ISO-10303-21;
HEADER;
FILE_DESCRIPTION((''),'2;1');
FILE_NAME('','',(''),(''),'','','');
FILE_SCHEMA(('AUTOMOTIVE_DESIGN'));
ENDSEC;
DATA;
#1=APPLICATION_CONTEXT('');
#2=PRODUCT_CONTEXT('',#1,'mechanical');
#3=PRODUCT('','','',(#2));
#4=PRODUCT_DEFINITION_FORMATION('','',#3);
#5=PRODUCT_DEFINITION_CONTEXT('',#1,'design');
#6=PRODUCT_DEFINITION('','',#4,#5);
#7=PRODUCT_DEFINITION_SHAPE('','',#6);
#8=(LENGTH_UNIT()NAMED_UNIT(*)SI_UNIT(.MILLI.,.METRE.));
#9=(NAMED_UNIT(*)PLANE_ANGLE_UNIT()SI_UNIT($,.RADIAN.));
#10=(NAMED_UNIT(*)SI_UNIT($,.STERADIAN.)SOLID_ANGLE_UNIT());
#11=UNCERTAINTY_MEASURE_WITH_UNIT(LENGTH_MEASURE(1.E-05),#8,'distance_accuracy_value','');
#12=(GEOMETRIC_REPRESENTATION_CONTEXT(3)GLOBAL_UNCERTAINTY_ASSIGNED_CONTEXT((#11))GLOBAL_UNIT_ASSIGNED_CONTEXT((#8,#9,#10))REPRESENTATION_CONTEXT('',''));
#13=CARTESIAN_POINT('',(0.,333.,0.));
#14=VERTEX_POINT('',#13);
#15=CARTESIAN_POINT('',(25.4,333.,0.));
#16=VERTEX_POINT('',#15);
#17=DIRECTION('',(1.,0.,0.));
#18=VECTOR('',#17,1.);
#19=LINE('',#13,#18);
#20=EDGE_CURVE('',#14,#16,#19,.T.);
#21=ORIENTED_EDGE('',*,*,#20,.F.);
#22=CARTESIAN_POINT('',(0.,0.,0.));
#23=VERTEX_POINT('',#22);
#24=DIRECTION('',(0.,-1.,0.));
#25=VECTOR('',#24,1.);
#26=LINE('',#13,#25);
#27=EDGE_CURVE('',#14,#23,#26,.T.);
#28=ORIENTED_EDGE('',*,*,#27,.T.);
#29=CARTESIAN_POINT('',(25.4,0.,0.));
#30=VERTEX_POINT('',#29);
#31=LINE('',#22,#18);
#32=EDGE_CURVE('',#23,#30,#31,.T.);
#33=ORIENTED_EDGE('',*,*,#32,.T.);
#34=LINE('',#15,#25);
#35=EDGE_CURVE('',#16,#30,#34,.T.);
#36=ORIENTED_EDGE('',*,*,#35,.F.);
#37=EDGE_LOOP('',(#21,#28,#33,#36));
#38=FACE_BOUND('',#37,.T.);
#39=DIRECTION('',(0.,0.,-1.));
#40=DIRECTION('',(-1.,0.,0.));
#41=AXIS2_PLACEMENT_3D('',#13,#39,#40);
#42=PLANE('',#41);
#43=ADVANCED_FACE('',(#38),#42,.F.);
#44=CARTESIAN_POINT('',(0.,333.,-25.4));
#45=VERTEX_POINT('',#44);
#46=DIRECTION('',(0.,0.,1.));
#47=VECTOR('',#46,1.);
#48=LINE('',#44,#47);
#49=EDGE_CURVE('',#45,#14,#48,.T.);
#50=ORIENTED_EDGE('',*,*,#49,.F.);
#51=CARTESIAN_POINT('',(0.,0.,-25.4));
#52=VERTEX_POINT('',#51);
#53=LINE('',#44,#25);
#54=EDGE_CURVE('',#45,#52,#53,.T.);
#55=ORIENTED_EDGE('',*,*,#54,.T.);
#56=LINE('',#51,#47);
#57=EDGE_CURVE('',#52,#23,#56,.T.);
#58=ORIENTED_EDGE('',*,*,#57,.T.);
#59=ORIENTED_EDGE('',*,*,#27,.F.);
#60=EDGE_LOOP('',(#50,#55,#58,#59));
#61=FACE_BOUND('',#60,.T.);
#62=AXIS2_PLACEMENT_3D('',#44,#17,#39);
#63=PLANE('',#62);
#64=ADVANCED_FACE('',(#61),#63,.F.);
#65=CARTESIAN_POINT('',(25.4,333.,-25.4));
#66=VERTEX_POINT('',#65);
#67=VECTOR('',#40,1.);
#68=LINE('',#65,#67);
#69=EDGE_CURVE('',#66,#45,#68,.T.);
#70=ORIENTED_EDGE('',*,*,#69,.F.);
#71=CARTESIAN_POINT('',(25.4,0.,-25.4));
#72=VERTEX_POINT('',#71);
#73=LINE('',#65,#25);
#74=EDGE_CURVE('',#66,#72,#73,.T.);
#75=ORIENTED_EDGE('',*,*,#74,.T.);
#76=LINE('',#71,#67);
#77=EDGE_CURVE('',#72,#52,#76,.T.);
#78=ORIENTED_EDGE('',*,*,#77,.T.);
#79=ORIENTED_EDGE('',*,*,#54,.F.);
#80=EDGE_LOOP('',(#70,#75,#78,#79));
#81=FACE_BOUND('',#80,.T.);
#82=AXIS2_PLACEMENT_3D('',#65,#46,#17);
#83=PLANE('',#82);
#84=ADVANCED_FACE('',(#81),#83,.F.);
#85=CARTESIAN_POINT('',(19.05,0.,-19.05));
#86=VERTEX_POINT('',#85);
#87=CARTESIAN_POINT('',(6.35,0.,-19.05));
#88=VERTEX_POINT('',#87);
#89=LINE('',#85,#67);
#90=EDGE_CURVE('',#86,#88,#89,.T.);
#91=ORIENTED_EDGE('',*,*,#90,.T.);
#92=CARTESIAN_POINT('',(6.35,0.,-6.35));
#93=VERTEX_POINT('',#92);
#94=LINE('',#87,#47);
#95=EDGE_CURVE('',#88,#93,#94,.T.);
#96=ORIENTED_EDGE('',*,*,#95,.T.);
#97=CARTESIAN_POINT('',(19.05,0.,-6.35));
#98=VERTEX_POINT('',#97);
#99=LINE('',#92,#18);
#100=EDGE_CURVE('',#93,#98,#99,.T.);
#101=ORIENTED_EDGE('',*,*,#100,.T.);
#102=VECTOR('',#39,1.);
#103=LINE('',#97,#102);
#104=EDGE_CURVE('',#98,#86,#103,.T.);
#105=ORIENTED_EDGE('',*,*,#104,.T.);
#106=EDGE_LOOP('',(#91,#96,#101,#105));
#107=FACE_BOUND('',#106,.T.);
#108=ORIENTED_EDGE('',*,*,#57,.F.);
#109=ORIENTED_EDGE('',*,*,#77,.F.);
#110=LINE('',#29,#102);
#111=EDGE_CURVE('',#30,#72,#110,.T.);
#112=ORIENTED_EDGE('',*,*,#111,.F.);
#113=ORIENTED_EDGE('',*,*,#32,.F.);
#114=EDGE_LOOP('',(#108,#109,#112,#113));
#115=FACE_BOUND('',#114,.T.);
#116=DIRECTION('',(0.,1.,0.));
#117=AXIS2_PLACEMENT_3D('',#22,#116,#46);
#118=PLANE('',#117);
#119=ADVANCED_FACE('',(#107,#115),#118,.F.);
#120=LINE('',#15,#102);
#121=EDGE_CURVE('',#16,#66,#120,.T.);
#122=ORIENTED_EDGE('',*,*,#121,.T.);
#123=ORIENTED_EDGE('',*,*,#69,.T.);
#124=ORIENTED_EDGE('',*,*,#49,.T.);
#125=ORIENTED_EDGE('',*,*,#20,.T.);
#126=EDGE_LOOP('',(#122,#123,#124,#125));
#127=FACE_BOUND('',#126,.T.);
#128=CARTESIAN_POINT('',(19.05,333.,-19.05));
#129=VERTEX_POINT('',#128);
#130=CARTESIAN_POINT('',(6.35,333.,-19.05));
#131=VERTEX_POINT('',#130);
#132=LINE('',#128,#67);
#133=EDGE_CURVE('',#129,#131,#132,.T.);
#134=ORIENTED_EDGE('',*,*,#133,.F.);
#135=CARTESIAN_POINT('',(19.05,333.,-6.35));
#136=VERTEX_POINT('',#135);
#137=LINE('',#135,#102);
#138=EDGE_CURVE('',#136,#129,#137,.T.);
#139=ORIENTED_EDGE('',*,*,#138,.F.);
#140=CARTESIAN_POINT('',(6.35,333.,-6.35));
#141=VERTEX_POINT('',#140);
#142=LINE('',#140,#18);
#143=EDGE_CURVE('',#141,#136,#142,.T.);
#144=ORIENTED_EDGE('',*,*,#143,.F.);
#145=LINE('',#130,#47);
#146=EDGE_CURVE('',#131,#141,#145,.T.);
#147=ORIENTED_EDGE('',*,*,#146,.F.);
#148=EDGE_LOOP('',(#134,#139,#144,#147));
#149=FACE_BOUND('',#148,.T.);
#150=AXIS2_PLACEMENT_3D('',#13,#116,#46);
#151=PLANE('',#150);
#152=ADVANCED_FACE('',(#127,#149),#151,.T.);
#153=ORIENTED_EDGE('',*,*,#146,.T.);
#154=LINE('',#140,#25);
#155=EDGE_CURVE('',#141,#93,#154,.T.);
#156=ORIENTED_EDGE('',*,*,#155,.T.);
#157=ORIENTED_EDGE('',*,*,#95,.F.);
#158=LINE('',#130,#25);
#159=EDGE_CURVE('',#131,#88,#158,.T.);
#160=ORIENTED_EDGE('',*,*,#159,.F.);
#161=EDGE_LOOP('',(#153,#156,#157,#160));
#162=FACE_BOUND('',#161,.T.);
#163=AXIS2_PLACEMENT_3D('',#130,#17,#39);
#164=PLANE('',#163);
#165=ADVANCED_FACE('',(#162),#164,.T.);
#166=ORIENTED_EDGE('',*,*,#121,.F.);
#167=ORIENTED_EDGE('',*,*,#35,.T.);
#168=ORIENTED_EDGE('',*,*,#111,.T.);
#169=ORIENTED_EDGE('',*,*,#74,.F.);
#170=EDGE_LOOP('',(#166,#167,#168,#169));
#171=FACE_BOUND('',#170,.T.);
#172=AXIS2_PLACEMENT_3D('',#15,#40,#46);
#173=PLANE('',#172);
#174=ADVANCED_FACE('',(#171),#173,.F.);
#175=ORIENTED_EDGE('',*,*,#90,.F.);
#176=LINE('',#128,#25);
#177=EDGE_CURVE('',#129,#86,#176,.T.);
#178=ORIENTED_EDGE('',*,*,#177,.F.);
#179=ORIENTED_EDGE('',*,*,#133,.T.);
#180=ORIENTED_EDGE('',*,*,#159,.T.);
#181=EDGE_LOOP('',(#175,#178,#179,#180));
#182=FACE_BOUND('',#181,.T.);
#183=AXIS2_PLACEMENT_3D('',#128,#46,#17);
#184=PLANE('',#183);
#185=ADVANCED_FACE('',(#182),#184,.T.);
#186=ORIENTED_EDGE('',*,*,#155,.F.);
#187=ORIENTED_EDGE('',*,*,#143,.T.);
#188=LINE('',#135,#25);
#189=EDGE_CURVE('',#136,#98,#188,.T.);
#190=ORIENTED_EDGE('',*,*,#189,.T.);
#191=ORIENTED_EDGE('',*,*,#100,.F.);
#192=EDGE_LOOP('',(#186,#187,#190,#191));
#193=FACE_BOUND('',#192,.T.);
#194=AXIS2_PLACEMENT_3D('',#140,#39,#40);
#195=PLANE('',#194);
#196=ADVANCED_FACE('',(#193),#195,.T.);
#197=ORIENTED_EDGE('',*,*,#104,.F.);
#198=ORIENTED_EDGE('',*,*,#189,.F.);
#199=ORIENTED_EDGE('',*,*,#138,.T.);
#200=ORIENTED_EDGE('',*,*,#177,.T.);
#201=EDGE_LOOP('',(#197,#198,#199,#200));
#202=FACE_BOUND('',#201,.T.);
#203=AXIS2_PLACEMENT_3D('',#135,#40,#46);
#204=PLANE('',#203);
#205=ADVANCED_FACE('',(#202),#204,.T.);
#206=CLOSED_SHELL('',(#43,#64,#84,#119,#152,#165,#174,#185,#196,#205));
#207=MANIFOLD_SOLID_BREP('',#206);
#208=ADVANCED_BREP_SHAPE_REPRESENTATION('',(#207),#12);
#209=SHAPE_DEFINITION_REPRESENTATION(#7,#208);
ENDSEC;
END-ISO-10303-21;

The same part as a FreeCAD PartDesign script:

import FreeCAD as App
import Part
import Sketcher

V = App.Vector
Q = App.Units.Quantity


def add_polygon(sketch, points):
    """Adds a closed chain of lines whose ends are joined by coincident constraints."""
    first, n = sketch.GeometryCount, len(points)
    for a, b in zip(points, points[1:] + points[:1]):
        sketch.addGeometry(Part.LineSegment(App.Vector(*a, 0), App.Vector(*b, 0)), False)
    for i in range(n):
        sketch.addConstraint(Sketcher.Constraint("Coincident", first + i, 2, first + (i + 1) % n, 1))

doc = App.newDocument("Part")
body = doc.addObject("PartDesign::Body", "Body")

sketch1 = body.newObject("Sketcher::SketchObject", "Sketch")
sketch1.AttachmentSupport = (doc.getObject("XZ_Plane"), [""])
sketch1.MapMode = "FlatFace"
add_polygon(sketch1, [(0, -25), (0, 0), (25, 0), (25, -25)])
add_polygon(sketch1, [(19, -6), (6, -6), (6, -19), (19, -19)])
sketch1.addConstraint([
    Sketcher.Constraint("Vertical", 0),
    Sketcher.Constraint("Horizontal", 1),
    Sketcher.Constraint("Vertical", 2),
    Sketcher.Constraint("Horizontal", 3),
    Sketcher.Constraint("Horizontal", 4),
    Sketcher.Constraint("Vertical", 5),
    Sketcher.Constraint("Horizontal", 6),
    Sketcher.Constraint("Vertical", 7),
    Sketcher.Constraint("Coincident", 0, 2, -1, 1),
    Sketcher.Constraint("Equal", 3, 0),
    Sketcher.Constraint("Equal", 6, 5),
    Sketcher.Constraint("DistanceX", 1, 1, 1, 2, Q("1 in")),
    Sketcher.Constraint("DistanceX", 4, 2, 4, 1, Q("0.5 in")),
    Sketcher.Constraint("DistanceX", -1, 1, 4, 2, Q("0.25 in")),
    Sketcher.Constraint("DistanceY", 4, 2, -1, 1, Q("0.25 in")),
])
pad1 = body.newObject("PartDesign::Pad", "Pad")
pad1.Profile = sketch1
pad1.Length = 333
pad1.Reversed = True

doc.recompute()
